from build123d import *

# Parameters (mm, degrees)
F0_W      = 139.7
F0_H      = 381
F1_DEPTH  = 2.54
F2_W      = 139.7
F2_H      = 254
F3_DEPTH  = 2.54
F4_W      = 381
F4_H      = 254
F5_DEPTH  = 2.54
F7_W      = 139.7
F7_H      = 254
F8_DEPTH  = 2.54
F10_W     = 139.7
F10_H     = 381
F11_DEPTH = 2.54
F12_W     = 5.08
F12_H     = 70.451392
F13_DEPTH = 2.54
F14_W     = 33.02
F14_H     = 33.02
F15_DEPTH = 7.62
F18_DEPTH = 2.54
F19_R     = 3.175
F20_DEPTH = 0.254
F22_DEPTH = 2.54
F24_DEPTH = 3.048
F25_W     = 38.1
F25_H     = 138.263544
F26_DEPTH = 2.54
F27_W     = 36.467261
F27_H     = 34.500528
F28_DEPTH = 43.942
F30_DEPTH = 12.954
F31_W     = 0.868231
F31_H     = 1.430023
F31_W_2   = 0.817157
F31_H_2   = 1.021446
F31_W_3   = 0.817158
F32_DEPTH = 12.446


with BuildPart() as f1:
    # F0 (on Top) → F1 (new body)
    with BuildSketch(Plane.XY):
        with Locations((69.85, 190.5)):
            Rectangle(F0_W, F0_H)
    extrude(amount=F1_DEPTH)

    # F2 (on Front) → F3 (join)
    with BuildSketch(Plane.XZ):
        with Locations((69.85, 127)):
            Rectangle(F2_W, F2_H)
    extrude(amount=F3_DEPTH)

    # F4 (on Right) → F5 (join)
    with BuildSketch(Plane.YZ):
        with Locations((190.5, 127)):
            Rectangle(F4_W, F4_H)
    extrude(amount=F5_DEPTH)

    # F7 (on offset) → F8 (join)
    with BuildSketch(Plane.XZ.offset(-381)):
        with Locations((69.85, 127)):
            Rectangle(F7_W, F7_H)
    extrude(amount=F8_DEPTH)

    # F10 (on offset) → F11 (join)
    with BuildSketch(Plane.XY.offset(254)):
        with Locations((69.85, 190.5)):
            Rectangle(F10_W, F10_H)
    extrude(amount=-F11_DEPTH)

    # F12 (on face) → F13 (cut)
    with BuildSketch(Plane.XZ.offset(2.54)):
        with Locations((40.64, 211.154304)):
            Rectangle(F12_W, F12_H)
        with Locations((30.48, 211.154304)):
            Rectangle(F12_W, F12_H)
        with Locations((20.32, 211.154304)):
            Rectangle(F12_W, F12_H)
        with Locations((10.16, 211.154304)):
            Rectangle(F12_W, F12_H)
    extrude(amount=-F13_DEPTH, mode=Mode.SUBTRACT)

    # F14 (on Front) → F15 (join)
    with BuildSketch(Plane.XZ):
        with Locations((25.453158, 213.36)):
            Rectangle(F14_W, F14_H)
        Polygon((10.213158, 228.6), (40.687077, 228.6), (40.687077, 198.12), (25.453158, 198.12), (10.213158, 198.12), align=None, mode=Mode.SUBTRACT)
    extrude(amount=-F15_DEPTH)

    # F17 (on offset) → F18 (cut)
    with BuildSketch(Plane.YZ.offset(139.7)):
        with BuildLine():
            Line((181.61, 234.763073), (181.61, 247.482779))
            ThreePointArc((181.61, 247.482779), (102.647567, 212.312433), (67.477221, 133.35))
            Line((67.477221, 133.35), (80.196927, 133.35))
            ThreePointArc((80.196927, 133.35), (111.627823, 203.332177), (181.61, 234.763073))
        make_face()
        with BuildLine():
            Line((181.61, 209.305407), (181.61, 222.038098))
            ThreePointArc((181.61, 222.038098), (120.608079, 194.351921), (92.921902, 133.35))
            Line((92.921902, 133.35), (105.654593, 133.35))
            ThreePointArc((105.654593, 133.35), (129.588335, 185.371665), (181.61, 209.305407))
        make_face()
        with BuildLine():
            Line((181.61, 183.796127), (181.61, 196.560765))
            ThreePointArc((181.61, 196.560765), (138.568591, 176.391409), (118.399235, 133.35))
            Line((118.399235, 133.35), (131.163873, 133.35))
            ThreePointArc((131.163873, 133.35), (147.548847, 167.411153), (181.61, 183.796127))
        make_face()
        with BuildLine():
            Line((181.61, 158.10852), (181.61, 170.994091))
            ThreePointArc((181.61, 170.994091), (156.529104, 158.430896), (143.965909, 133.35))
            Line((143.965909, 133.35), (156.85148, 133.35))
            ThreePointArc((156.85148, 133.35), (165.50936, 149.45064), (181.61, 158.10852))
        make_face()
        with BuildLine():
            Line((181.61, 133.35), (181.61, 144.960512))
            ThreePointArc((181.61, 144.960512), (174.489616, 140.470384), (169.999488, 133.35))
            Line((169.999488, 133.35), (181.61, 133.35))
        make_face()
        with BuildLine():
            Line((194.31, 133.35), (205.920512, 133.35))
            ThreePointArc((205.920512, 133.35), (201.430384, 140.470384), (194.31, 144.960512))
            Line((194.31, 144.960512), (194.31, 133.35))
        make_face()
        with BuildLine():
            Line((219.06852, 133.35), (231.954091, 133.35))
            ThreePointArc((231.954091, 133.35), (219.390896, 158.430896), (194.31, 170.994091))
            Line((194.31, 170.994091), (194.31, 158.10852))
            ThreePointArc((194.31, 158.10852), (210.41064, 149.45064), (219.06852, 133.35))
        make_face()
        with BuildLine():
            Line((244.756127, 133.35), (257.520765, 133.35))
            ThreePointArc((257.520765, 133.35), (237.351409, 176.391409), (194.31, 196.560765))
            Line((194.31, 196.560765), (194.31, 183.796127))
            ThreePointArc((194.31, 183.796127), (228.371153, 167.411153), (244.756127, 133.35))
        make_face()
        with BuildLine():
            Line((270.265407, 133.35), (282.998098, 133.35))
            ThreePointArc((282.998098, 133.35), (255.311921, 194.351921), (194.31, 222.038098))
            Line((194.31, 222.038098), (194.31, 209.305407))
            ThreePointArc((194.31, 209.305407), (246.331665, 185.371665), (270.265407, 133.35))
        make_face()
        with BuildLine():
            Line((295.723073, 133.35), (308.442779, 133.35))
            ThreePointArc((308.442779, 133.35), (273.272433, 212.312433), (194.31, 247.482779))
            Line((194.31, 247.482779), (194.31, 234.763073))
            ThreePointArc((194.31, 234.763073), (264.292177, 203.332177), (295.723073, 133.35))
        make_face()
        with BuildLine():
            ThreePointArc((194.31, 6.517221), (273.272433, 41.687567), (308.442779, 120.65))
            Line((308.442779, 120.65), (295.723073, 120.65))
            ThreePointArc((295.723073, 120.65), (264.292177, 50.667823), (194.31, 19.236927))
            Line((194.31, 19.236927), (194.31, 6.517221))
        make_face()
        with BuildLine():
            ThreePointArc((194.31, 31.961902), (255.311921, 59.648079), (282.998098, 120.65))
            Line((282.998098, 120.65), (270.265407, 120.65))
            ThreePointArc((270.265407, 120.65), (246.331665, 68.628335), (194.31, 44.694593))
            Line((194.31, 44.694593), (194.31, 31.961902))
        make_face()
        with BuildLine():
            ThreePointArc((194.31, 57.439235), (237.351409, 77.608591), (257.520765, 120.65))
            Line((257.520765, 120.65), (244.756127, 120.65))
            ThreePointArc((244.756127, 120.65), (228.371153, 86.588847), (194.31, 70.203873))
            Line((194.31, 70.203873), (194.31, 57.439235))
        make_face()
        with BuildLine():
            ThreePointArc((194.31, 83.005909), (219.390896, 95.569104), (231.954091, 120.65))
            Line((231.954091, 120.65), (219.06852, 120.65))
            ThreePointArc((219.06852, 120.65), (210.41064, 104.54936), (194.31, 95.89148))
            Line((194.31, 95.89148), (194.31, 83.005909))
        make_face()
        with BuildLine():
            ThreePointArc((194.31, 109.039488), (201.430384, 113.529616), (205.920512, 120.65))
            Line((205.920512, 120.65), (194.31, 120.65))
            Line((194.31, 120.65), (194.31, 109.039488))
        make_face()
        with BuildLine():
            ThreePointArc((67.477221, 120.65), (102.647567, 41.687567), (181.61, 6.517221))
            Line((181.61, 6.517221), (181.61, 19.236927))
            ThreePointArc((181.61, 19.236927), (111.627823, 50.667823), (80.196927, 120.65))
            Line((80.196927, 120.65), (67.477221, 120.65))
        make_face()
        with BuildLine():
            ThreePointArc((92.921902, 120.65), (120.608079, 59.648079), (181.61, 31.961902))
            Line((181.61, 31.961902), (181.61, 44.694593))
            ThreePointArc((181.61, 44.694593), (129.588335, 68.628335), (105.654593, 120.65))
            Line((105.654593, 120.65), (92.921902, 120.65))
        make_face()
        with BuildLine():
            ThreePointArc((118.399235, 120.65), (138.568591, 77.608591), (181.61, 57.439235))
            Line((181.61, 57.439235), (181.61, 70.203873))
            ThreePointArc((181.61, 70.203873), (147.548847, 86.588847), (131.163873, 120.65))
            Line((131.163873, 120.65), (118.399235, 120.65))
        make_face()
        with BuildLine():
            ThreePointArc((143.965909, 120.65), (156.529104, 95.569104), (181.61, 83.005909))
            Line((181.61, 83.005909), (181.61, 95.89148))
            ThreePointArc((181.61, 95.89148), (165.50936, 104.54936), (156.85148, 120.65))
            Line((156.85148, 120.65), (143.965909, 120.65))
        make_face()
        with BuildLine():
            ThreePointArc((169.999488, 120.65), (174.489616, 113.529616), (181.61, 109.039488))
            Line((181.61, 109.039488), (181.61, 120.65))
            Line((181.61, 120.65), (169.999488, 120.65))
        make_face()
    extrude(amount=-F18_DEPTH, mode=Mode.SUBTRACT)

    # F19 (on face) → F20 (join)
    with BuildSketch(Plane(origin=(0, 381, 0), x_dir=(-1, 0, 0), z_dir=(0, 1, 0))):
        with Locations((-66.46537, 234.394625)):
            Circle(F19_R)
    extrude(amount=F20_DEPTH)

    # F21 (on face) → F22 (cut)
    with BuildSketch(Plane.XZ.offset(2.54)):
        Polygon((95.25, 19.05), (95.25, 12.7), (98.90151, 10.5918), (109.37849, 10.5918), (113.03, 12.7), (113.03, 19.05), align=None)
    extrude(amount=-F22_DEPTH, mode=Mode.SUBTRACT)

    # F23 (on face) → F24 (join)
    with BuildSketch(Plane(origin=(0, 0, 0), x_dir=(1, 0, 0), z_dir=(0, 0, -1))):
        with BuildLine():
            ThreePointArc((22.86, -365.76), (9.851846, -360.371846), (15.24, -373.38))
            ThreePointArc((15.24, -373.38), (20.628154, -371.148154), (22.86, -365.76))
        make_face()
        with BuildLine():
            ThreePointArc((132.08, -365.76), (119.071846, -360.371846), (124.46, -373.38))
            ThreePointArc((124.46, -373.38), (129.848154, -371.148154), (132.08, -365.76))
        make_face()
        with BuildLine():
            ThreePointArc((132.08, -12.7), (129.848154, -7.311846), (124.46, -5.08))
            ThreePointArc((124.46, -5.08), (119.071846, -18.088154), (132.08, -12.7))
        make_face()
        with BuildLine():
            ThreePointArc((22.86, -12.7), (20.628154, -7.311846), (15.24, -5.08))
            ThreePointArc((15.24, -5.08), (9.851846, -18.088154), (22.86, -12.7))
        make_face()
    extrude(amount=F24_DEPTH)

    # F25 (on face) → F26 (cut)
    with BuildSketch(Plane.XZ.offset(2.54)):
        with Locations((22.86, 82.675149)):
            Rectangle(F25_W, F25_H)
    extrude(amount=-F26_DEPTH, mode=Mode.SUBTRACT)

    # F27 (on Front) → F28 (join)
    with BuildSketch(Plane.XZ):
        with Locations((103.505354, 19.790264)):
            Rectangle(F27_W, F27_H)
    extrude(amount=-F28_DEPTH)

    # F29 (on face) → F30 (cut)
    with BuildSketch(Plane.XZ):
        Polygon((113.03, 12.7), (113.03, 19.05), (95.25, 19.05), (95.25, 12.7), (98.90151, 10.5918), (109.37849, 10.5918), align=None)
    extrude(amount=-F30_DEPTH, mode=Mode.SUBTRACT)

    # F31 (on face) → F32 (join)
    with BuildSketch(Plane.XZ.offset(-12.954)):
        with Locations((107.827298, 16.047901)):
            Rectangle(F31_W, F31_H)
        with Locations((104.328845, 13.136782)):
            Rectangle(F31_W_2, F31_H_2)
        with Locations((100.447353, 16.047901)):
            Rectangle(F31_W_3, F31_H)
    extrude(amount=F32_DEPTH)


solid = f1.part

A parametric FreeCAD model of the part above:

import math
import FreeCAD as App
import Part
import Sketcher
from FreeCAD import Vector
Q = App.Units.Quantity


def add_polygon(sketch, points):
    """Adds a closed chain of lines whose ends are joined by coincident constraints."""
    first, n = sketch.GeometryCount, len(points)
    for a, b in zip(points, points[1:] + points[:1]):
        sketch.addGeometry(Part.LineSegment(App.Vector(*a, 0), App.Vector(*b, 0)), False)
    for i in range(n):
        sketch.addConstraint(Sketcher.Constraint("Coincident", first + i, 2, first + (i + 1) % n, 1))

doc = App.newDocument("Part")
body = doc.addObject("PartDesign::Body", "Body")

sketch1 = body.newObject("Sketcher::SketchObject", "Sketch")
sketch1.AttachmentSupport = (doc.getObject("XY_Plane"), [""])
sketch1.MapMode = "FlatFace"
add_polygon(sketch1, [(0, 381), (0, 0), (140, 0), (140, 381)])
sketch1.addConstraint([
    Sketcher.Constraint("Vertical", 0),
    Sketcher.Constraint("Horizontal", 1),
    Sketcher.Constraint("Vertical", 2),
    Sketcher.Constraint("Horizontal", 3),
    Sketcher.Constraint("Coincident", 0, 2, -1, 1),
    Sketcher.Constraint("DistanceY", 0, 2, 0, 1, Q("15 in")),
    Sketcher.Constraint("DistanceX", 1, 1, 1, 2, Q("5.5 in")),
])
pad1 = body.newObject("PartDesign::Pad", "Pad")
pad1.Profile = sketch1
pad1.Length = Q("0.1 in")

sketch2 = body.newObject("Sketcher::SketchObject", "Sketch001")
sketch2.AttachmentSupport = (doc.getObject("XZ_Plane"), [""])
sketch2.MapMode = "FlatFace"
add_polygon(sketch2, [(0, 254), (0, 0), (140, 0), (140, 254)])
sketch2.addConstraint([
    Sketcher.Constraint("Vertical", 0),
    Sketcher.Constraint("Horizontal", 1),
    Sketcher.Constraint("Vertical", 2),
    Sketcher.Constraint("Horizontal", 3),
    Sketcher.Constraint("Coincident", 0, 2, -1, 1),
    Sketcher.Constraint("DistanceY", 0, 2, 0, 1, Q("10 in")),
    Sketcher.Constraint("DistanceX", 1, 1, 1, 2, Q("5.5 in")),
])
pad2 = body.newObject("PartDesign::Pad", "Pad001")
pad2.Profile = sketch2
pad2.Length = Q("0.1 in")

sketch3 = body.newObject("Sketcher::SketchObject", "Sketch002")
sketch3.AttachmentSupport = (doc.getObject("YZ_Plane"), [""])
sketch3.MapMode = "FlatFace"
add_polygon(sketch3, [(0, 254), (0, 0), (381, 0), (381, 254)])
sketch3.addConstraint([
    Sketcher.Constraint("Vertical", 0),
    Sketcher.Constraint("Horizontal", 1),
    Sketcher.Constraint("Vertical", 2),
    Sketcher.Constraint("Horizontal", 3),
    Sketcher.Constraint("Coincident", 0, 2, -1, 1),
    Sketcher.Constraint("DistanceX", 1, 1, 1, 2, Q("15 in")),
    Sketcher.Constraint("DistanceY", 0, 2, 0, 1, Q("10 in")),
])
pad3 = body.newObject("PartDesign::Pad", "Pad002")
pad3.Profile = sketch3
pad3.Length = Q("0.1 in")

sketch4 = body.newObject("Sketcher::SketchObject", "Sketch003")
sketch4.AttachmentSupport = (doc.getObject("XZ_Plane"), [""])
sketch4.MapMode = "FlatFace"
sketch4.AttachmentOffset = App.Placement(Vector(0, 0, -15 * 25.4), App.Rotation())
add_polygon(sketch4, [(0, 254), (0, 0), (140, 0), (140, 254)])
sketch4.addConstraint([
    Sketcher.Constraint("Vertical", 0),
    Sketcher.Constraint("Horizontal", 1),
    Sketcher.Constraint("Vertical", 2),
    Sketcher.Constraint("Horizontal", 3),
    Sketcher.Constraint("Coincident", 0, 2, -1, 1),
    Sketcher.Constraint("DistanceY", 0, 2, 0, 1, Q("10 in")),
    Sketcher.Constraint("DistanceX", 1, 1, 1, 2, Q("5.5 in")),
])
pad4 = body.newObject("PartDesign::Pad", "Pad003")
pad4.Profile = sketch4
pad4.Length = Q("0.1 in")

sketch5 = body.newObject("Sketcher::SketchObject", "Sketch004")
sketch5.AttachmentSupport = (doc.getObject("XY_Plane"), [""])
sketch5.MapMode = "FlatFace"
sketch5.AttachmentOffset = App.Placement(Vector(0, 0, 10 * 25.4), App.Rotation())
add_polygon(sketch5, [(0, 381), (0, 0), (140, 0), (140, 381)])
sketch5.addConstraint([
    Sketcher.Constraint("Vertical", 0),
    Sketcher.Constraint("Horizontal", 1),
    Sketcher.Constraint("Vertical", 2),
    Sketcher.Constraint("Horizontal", 3),
    Sketcher.Constraint("Coincident", 0, 2, -1, 1),
    Sketcher.Constraint("DistanceY", 0, 2, 0, 1, Q("15 in")),
    Sketcher.Constraint("DistanceX", 1, 1, 1, 2, Q("5.5 in")),
])
pad5 = body.newObject("PartDesign::Pad", "Pad004")
pad5.Profile = sketch5
pad5.Length = Q("0.1 in")
pad5.Reversed = True

sketch6 = body.newObject("Sketcher::SketchObject", "Sketch005")
sketch6.AttachmentSupport = (doc.getObject("XZ_Plane"), [""])
sketch6.MapMode = "FlatFace"
sketch6.AttachmentOffset = App.Placement(Vector(0, 0, 0.1 * 25.4), App.Rotation())
add_polygon(sketch6, [(38, 246), (38, 176), (43, 176), (43, 246)])
add_polygon(sketch6, [(28, 246), (28, 176), (33, 176), (33, 246)])
add_polygon(sketch6, [(18, 246), (18, 176), (23, 176), (23, 246)])
add_polygon(sketch6, [(8, 246), (8, 176), (13, 176), (13, 246)])
sketch6.addConstraint([
    Sketcher.Constraint("Vertical", 0),
    Sketcher.Constraint("Horizontal", 1),
    Sketcher.Constraint("Vertical", 2),
    Sketcher.Constraint("Horizontal", 3),
    Sketcher.Constraint("Vertical", 4),
    Sketcher.Constraint("Horizontal", 5),
    Sketcher.Constraint("Vertical", 6),
    Sketcher.Constraint("Horizontal", 7),
    Sketcher.Constraint("Vertical", 8),
    Sketcher.Constraint("Horizontal", 9),
    Sketcher.Constraint("Vertical", 10),
    Sketcher.Constraint("Horizontal", 11),
    Sketcher.Constraint("Vertical", 12),
    Sketcher.Constraint("Horizontal", 13),
    Sketcher.Constraint("Vertical", 14),
    Sketcher.Constraint("Horizontal", 15),
    Sketcher.Constraint("Horizontal", 1, 2, 4, 2),
    Sketcher.Constraint("Horizontal", 3, 2, 6, 2),
    Sketcher.Constraint("Horizontal", 5, 2, 8, 2),
    Sketcher.Constraint("Horizontal", 7, 2, 10, 2),
    Sketcher.Constraint("Horizontal", 9, 2, 12, 2),
    Sketcher.Constraint("Horizontal", 11, 2, 14, 2),
    Sketcher.Constraint("Equal", 3, 5),
    Sketcher.Constraint("Equal", 7, 9),
    Sketcher.Constraint("Equal", 11, 13),
    Sketcher.Constraint("DistanceX", 1, 1, 1, 2, Q("0.2 in")),
    Sketcher.Constraint("DistanceX", 8, 2, 1, 2, Q("1 in")),
    Sketcher.Constraint("DistanceX", 12, 2, 5, 2, Q("1 in")),
    Sketcher.Constraint("DistanceX", 14, 2, 3, 2, Q("1 in")),
    Sketcher.Constraint("DistanceX", -1, 1, 0, 2, Q("1.5 in")),
    Sketcher.Constraint("DistanceY", -1, 1, 2, 2, Q("9.7 in")),
    Sketcher.Constraint("DistanceY", 0, 2, 0, 1, Q("70.451392 mm")),
])
pocket1 = body.newObject("PartDesign::Pocket", "Pocket")
pocket1.Profile = sketch6
pocket1.Length = Q("0.1 in")

sketch7 = body.newObject("Sketcher::SketchObject", "Sketch006")
sketch7.AttachmentSupport = (doc.getObject("XZ_Plane"), [""])
sketch7.MapMode = "FlatFace"
add_polygon(sketch7, [(9, 230), (9, 197), (42, 197), (42, 230)])
add_polygon(sketch7, [(10, 198), (10, 229), (41, 229), (41, 198)])
sketch7.addConstraint([
    Sketcher.Constraint("Vertical", 0),
    Sketcher.Constraint("Horizontal", 1),
    Sketcher.Constraint("Vertical", 2),
    Sketcher.Constraint("Horizontal", 3),
    Sketcher.Constraint("Vertical", 4),
    Sketcher.Constraint("Horizontal", 5),
    Sketcher.Constraint("Vertical", 6),
    Sketcher.Constraint("Horizontal", 7),
    Sketcher.Constraint("Equal", 3, 0),
    Sketcher.Constraint("DistanceX", 1, 1, 1, 2, Q("1.3 in")),
    Sketcher.Constraint("DistanceY", 4, 1, 4, 2, Q("1.2 in")),
    Sketcher.Constraint("DistanceY", -1, 1, 4, 2, Q("9 in")),
    Sketcher.Constraint("DistanceY", -1, 1, 0, 2, Q("7.75 in")),
    Sketcher.Constraint("DistanceX", 3, 2, 4, 2, Q("0.05 in")),
    Sketcher.Constraint("DistanceX", 5, 1, 5, 2, Q("30.473919 mm")),
    Sketcher.Constraint("DistanceX", -1, 1, 0, 2, Q("8.943158 mm")),
])
pad6 = body.newObject("PartDesign::Pad", "Pad005")
pad6.Profile = sketch7
pad6.Length = Q("0.3 in")
pad6.Reversed = True

sketch8 = body.newObject("Sketcher::SketchObject", "Sketch007")
sketch8.AttachmentSupport = (doc.getObject("YZ_Plane"), [""])
sketch8.MapMode = "FlatFace"
sketch8.AttachmentOffset = App.Placement(Vector(0, 0, 5.5 * 25.4), App.Rotation())
sketch8.addGeometry([
    Part.LineSegment(Vector(182, 235, 0), Vector(182, 247, 0)),
    Part.ArcOfCircle(Part.Circle(Vector(188, 127, 0), Vector(0, 0, 1), 121), math.radians(93), math.radians(177)),
    Part.LineSegment(Vector(67, 133, 0), Vector(80, 133, 0)),
    Part.ArcOfCircle(Part.Circle(Vector(188, 127, 0), Vector(0, 0, 1), 108), math.radians(93), math.radians(177)),
    Part.LineSegment(Vector(182, 209, 0), Vector(182, 222, 0)),
    Part.ArcOfCircle(Part.Circle(Vector(188, 127, 0), Vector(0, 0, 1), 95), math.radians(94), math.radians(176)),
    Part.LineSegment(Vector(93, 133, 0), Vector(106, 133, 0)),
    Part.ArcOfCircle(Part.Circle(Vector(188, 127, 0), Vector(0, 0, 1), 83), math.radians(94), math.radians(176)),
    Part.LineSegment(Vector(182, 184, 0), Vector(182, 197, 0)),
    Part.ArcOfCircle(Part.Circle(Vector(188, 127, 0), Vector(0, 0, 1), 70), math.radians(95), math.radians(175)),
    Part.LineSegment(Vector(118, 133, 0), Vector(131, 133, 0)),
    Part.ArcOfCircle(Part.Circle(Vector(188, 127, 0), Vector(0, 0, 1), 57), math.radians(96), math.radians(174)),
    Part.LineSegment(Vector(182, 158, 0), Vector(182, 171, 0)),
    Part.ArcOfCircle(Part.Circle(Vector(188, 127, 0), Vector(0, 0, 1), 44), math.radians(98), math.radians(172)),
    Part.LineSegment(Vector(144, 133, 0), Vector(157, 133, 0)),
    Part.ArcOfCircle(Part.Circle(Vector(188, 127, 0), Vector(0, 0, 1), 32), math.radians(102), math.radians(168)),
    Part.LineSegment(Vector(182, 133, 0), Vector(182, 145, 0)),
    Part.ArcOfCircle(Part.Circle(Vector(188, 127, 0), Vector(0, 0, 1), 19), math.radians(109), math.radians(161)),
    Part.LineSegment(Vector(170, 133, 0), Vector(182, 133, 0)),
    Part.LineSegment(Vector(194, 133, 0), Vector(206, 133, 0)),
    Part.ArcOfCircle(Part.Circle(Vector(188, 127, 0), Vector(0, 0, 1), 19), math.radians(19), math.radians(71)),
    Part.LineSegment(Vector(194, 145, 0), Vector(194, 133, 0)),
    Part.LineSegment(Vector(219, 133, 0), Vector(232, 133, 0)),
    Part.ArcOfCircle(Part.Circle(Vector(188, 127, 0), Vector(0, 0, 1), 44), math.radians(8), math.radians(82)),
    Part.LineSegment(Vector(194, 171, 0), Vector(194, 158, 0)),
    Part.ArcOfCircle(Part.Circle(Vector(188, 127, 0), Vector(0, 0, 1), 32), math.radians(12), math.radians(78)),
    Part.LineSegment(Vector(245, 133, 0), Vector(258, 133, 0)),
    Part.ArcOfCircle(Part.Circle(Vector(188, 127, 0), Vector(0, 0, 1), 70), math.radians(5), math.radians(85)),
    Part.LineSegment(Vector(194, 197, 0), Vector(194, 184, 0)),
    Part.ArcOfCircle(Part.Circle(Vector(188, 127, 0), Vector(0, 0, 1), 57), math.radians(6), math.radians(84)),
    Part.LineSegment(Vector(270, 133, 0), Vector(283, 133, 0)),
    Part.ArcOfCircle(Part.Circle(Vector(188, 127, 0), Vector(0, 0, 1), 95), math.radians(4), math.radians(86)),
    Part.LineSegment(Vector(194, 222, 0), Vector(194, 209, 0)),
    Part.ArcOfCircle(Part.Circle(Vector(188, 127, 0), Vector(0, 0, 1), 83), math.radians(4), math.radians(86)),
    Part.LineSegment(Vector(296, 133, 0), Vector(308, 133, 0)),
    Part.ArcOfCircle(Part.Circle(Vector(188, 127, 0), Vector(0, 0, 1), 121), math.radians(3), math.radians(87)),
    Part.LineSegment(Vector(194, 247, 0), Vector(194, 235, 0)),
    Part.ArcOfCircle(Part.Circle(Vector(188, 127, 0), Vector(0, 0, 1), 108), math.radians(3), math.radians(87)),
    Part.ArcOfCircle(Part.Circle(Vector(188, 127, 0), Vector(0, 0, 1), 121), math.radians(-87), math.radians(-3)),
    Part.LineSegment(Vector(308, 121, 0), Vector(296, 121, 0)),
    Part.ArcOfCircle(Part.Circle(Vector(188, 127, 0), Vector(0, 0, 1), 108), math.radians(-87), math.radians(-3)),
    Part.LineSegment(Vector(194, 19, 0), Vector(194, 7, 0)),
    Part.ArcOfCircle(Part.Circle(Vector(188, 127, 0), Vector(0, 0, 1), 95), math.radians(-86), math.radians(-4)),
    Part.LineSegment(Vector(283, 121, 0), Vector(270, 121, 0)),
    Part.ArcOfCircle(Part.Circle(Vector(188, 127, 0), Vector(0, 0, 1), 83), math.radians(-86), math.radians(-4)),
    Part.LineSegment(Vector(194, 45, 0), Vector(194, 32, 0)),
    Part.ArcOfCircle(Part.Circle(Vector(188, 127, 0), Vector(0, 0, 1), 70), math.radians(-85), math.radians(-5)),
    Part.LineSegment(Vector(258, 121, 0), Vector(245, 121, 0)),
    Part.ArcOfCircle(Part.Circle(Vector(188, 127, 0), Vector(0, 0, 1), 57), math.radians(-84), math.radians(-6)),
    Part.LineSegment(Vector(194, 70, 0), Vector(194, 57, 0)),
    Part.ArcOfCircle(Part.Circle(Vector(188, 127, 0), Vector(0, 0, 1), 44), math.radians(-82), math.radians(-8)),
    Part.LineSegment(Vector(232, 121, 0), Vector(219, 121, 0)),
    Part.ArcOfCircle(Part.Circle(Vector(188, 127, 0), Vector(0, 0, 1), 32), math.radians(-78), math.radians(-12)),
    Part.LineSegment(Vector(194, 96, 0), Vector(194, 83, 0)),
    Part.ArcOfCircle(Part.Circle(Vector(188, 127, 0), Vector(0, 0, 1), 19), math.radians(-71), math.radians(-19)),
    Part.LineSegment(Vector(206, 121, 0), Vector(194, 121, 0)),
    Part.LineSegment(Vector(194, 121, 0), Vector(194, 109, 0)),
    Part.ArcOfCircle(Part.Circle(Vector(188, 127, 0), Vector(0, 0, 1), 121), math.radians(-177), math.radians(-93)),
    Part.LineSegment(Vector(182, 7, 0), Vector(182, 19, 0)),
    Part.ArcOfCircle(Part.Circle(Vector(188, 127, 0), Vector(0, 0, 1), 108), math.radians(-177), math.radians(-93)),
    Part.LineSegment(Vector(80, 121, 0), Vector(67, 121, 0)),
    Part.ArcOfCircle(Part.Circle(Vector(188, 127, 0), Vector(0, 0, 1), 95), math.radians(-176), math.radians(-94)),
    Part.LineSegment(Vector(182, 32, 0), Vector(182, 45, 0)),
    Part.ArcOfCircle(Part.Circle(Vector(188, 127, 0), Vector(0, 0, 1), 83), math.radians(-176), math.radians(-94)),
    Part.LineSegment(Vector(106, 121, 0), Vector(93, 121, 0)),
    Part.ArcOfCircle(Part.Circle(Vector(188, 127, 0), Vector(0, 0, 1), 70), math.radians(-175), math.radians(-95)),
    Part.LineSegment(Vector(182, 57, 0), Vector(182, 70, 0)),
    Part.ArcOfCircle(Part.Circle(Vector(188, 127, 0), Vector(0, 0, 1), 57), math.radians(-174), math.radians(-96)),
    Part.LineSegment(Vector(131, 121, 0), Vector(118, 121, 0)),
    Part.ArcOfCircle(Part.Circle(Vector(188, 127, 0), Vector(0, 0, 1), 44), math.radians(-172), math.radians(-98)),
    Part.LineSegment(Vector(182, 83, 0), Vector(182, 96, 0)),
    Part.ArcOfCircle(Part.Circle(Vector(188, 127, 0), Vector(0, 0, 1), 32), math.radians(-168), math.radians(-102)),
    Part.LineSegment(Vector(157, 121, 0), Vector(144, 121, 0)),
    Part.ArcOfCircle(Part.Circle(Vector(188, 127, 0), Vector(0, 0, 1), 19), math.radians(-161), math.radians(-109)),
    Part.LineSegment(Vector(182, 109, 0), Vector(182, 121, 0)),
    Part.LineSegment(Vector(182, 121, 0), Vector(170, 121, 0)),
], False)
sketch8.addConstraint([
    Sketcher.Constraint("Coincident", 0, 2, 1, 1),
    Sketcher.Constraint("Coincident", 1, 2, 2, 1),
    Sketcher.Constraint("Coincident", 2, 2, 3, 2),
    Sketcher.Constraint("Coincident", 3, 1, 0, 1),
    Sketcher.Constraint("Coincident", 4, 2, 5, 1),
    Sketcher.Constraint("Coincident", 5, 2, 6, 1),
    Sketcher.Constraint("Coincident", 6, 2, 7, 2),
    Sketcher.Constraint("Coincident", 7, 1, 4, 1),
    Sketcher.Constraint("Coincident", 8, 2, 9, 1),
    Sketcher.Constraint("Coincident", 9, 2, 10, 1),
    Sketcher.Constraint("Coincident", 10, 2, 11, 2),
    Sketcher.Constraint("Coincident", 11, 1, 8, 1),
    Sketcher.Constraint("Coincident", 12, 2, 13, 1),
    Sketcher.Constraint("Coincident", 13, 2, 14, 1),
    Sketcher.Constraint("Coincident", 14, 2, 15, 2),
    Sketcher.Constraint("Coincident", 15, 1, 12, 1),
    Sketcher.Constraint("Coincident", 16, 2, 17, 1),
    Sketcher.Constraint("Coincident", 17, 2, 18, 1),
    Sketcher.Constraint("Coincident", 18, 2, 16, 1),
    Sketcher.Constraint("Coincident", 19, 2, 20, 1),
    Sketcher.Constraint("Coincident", 20, 2, 21, 1),
    Sketcher.Constraint("Coincident", 21, 2, 19, 1),
    Sketcher.Constraint("Coincident", 22, 2, 23, 1),
    Sketcher.Constraint("Coincident", 23, 2, 24, 1),
    Sketcher.Constraint("Coincident", 24, 2, 25, 2),
    Sketcher.Constraint("Coincident", 25, 1, 22, 1),
    Sketcher.Constraint("Coincident", 26, 2, 27, 1),
    Sketcher.Constraint("Coincident", 27, 2, 28, 1),
    Sketcher.Constraint("Coincident", 28, 2, 29, 2),
    Sketcher.Constraint("Coincident", 29, 1, 26, 1),
    Sketcher.Constraint("Coincident", 30, 2, 31, 1),
    Sketcher.Constraint("Coincident", 31, 2, 32, 1),
    Sketcher.Constraint("Coincident", 32, 2, 33, 2),
    Sketcher.Constraint("Coincident", 33, 1, 30, 1),
    Sketcher.Constraint("Coincident", 34, 2, 35, 1),
    Sketcher.Constraint("Coincident", 35, 2, 36, 1),
    Sketcher.Constraint("Coincident", 36, 2, 37, 2),
    Sketcher.Constraint("Coincident", 37, 1, 34, 1),
    Sketcher.Constraint("Coincident", 38, 2, 39, 1),
    Sketcher.Constraint("Coincident", 39, 2, 40, 2),
    Sketcher.Constraint("Coincident", 40, 1, 41, 1),
    Sketcher.Constraint("Coincident", 41, 2, 38, 1),
    Sketcher.Constraint("Coincident", 42, 2, 43, 1),
    Sketcher.Constraint("Coincident", 43, 2, 44, 2),
    Sketcher.Constraint("Coincident", 44, 1, 45, 1),
    Sketcher.Constraint("Coincident", 45, 2, 42, 1),
    Sketcher.Constraint("Coincident", 46, 2, 47, 1),
    Sketcher.Constraint("Coincident", 47, 2, 48, 2),
    Sketcher.Constraint("Coincident", 48, 1, 49, 1),
    Sketcher.Constraint("Coincident", 49, 2, 46, 1),
    Sketcher.Constraint("Coincident", 50, 2, 51, 1),
    Sketcher.Constraint("Coincident", 51, 2, 52, 2),
    Sketcher.Constraint("Coincident", 52, 1, 53, 1),
    Sketcher.Constraint("Coincident", 53, 2, 50, 1),
    Sketcher.Constraint("Coincident", 54, 2, 55, 1),
    Sketcher.Constraint("Coincident", 55, 2, 56, 1),
    Sketcher.Constraint("Coincident", 56, 2, 54, 1),
    Sketcher.Constraint("Coincident", 57, 2, 58, 1),
    Sketcher.Constraint("Coincident", 58, 2, 59, 2),
    Sketcher.Constraint("Coincident", 59, 1, 60, 1),
    Sketcher.Constraint("Coincident", 60, 2, 57, 1),
    Sketcher.Constraint("Coincident", 61, 2, 62, 1),
    Sketcher.Constraint("Coincident", 62, 2, 63, 2),
    Sketcher.Constraint("Coincident", 63, 1, 64, 1),
    Sketcher.Constraint("Coincident", 64, 2, 61, 1),
    Sketcher.Constraint("Coincident", 65, 2, 66, 1),
    Sketcher.Constraint("Coincident", 66, 2, 67, 2),
    Sketcher.Constraint("Coincident", 67, 1, 68, 1),
    Sketcher.Constraint("Coincident", 68, 2, 65, 1),
    Sketcher.Constraint("Coincident", 69, 2, 70, 1),
    Sketcher.Constraint("Coincident", 70, 2, 71, 2),
    Sketcher.Constraint("Coincident", 71, 1, 72, 1),
    Sketcher.Constraint("Coincident", 72, 2, 69, 1),
    Sketcher.Constraint("Coincident", 73, 2, 74, 1),
    Sketcher.Constraint("Coincident", 74, 2, 75, 1),
    Sketcher.Constraint("Coincident", 75, 2, 73, 1),
    Sketcher.Constraint("Vertical", 0),
    Sketcher.Constraint("Horizontal", 2),
    Sketcher.Constraint("Vertical", 4),
    Sketcher.Constraint("Horizontal", 6),
    Sketcher.Constraint("Vertical", 8),
    Sketcher.Constraint("Horizontal", 10),
    Sketcher.Constraint("Vertical", 12),
    Sketcher.Constraint("Horizontal", 14),
    Sketcher.Constraint("Vertical", 16),
    Sketcher.Constraint("Horizontal", 18),
    Sketcher.Constraint("Horizontal", 19),
    Sketcher.Constraint("Vertical", 21),
    Sketcher.Constraint("Horizontal", 22),
    Sketcher.Constraint("Vertical", 24),
    Sketcher.Constraint("Horizontal", 26),
    Sketcher.Constraint("Vertical", 28),
    Sketcher.Constraint("Horizontal", 30),
    Sketcher.Constraint("Vertical", 32),
    Sketcher.Constraint("Horizontal", 34),
    Sketcher.Constraint("Vertical", 36),
    Sketcher.Constraint("Horizontal", 39),
    Sketcher.Constraint("Vertical", 41),
    Sketcher.Constraint("Horizontal", 43),
    Sketcher.Constraint("Vertical", 45),
    Sketcher.Constraint("Horizontal", 47),
    Sketcher.Constraint("Vertical", 49),
    Sketcher.Constraint("Horizontal", 51),
    Sketcher.Constraint("Vertical", 53),
    Sketcher.Constraint("Horizontal", 55),
    Sketcher.Constraint("Vertical", 56),
    Sketcher.Constraint("Vertical", 58),
    Sketcher.Constraint("Horizontal", 60),
    Sketcher.Constraint("Vertical", 62),
    Sketcher.Constraint("Horizontal", 64),
    Sketcher.Constraint("Vertical", 66),
    Sketcher.Constraint("Horizontal", 68),
    Sketcher.Constraint("Vertical", 70),
    Sketcher.Constraint("Horizontal", 72),
    Sketcher.Constraint("Vertical", 74),
    Sketcher.Constraint("Horizontal", 75),
    Sketcher.Constraint("Coincident", 3, 3, 1, 3),
    Sketcher.Constraint("Coincident", 5, 3, 1, 3),
    Sketcher.Constraint("Coincident", 7, 3, 1, 3),
    Sketcher.Constraint("Coincident", 9, 3, 1, 3),
    Sketcher.Constraint("Coincident", 11, 3, 1, 3),
    Sketcher.Constraint("Coincident", 13, 3, 1, 3),
    Sketcher.Constraint("Coincident", 15, 3, 1, 3),
    Sketcher.Constraint("Coincident", 17, 3, 1, 3),
    Sketcher.Constraint("Coincident", 20, 3, 1, 3),
    Sketcher.Constraint("Coincident", 23, 3, 1, 3),
    Sketcher.Constraint("Coincident", 25, 3, 1, 3),
    Sketcher.Constraint("Coincident", 27, 3, 1, 3),
    Sketcher.Constraint("Coincident", 29, 3, 1, 3),
    Sketcher.Constraint("Coincident", 31, 3, 1, 3),
    Sketcher.Constraint("Coincident", 33, 3, 1, 3),
    Sketcher.Constraint("Coincident", 35, 3, 1, 3),
    Sketcher.Constraint("Coincident", 37, 3, 1, 3),
    Sketcher.Constraint("Coincident", 38, 3, 1, 3),
    Sketcher.Constraint("Coincident", 40, 3, 1, 3),
    Sketcher.Constraint("Coincident", 42, 3, 1, 3),
    Sketcher.Constraint("Coincident", 44, 3, 1, 3),
    Sketcher.Constraint("Coincident", 46, 3, 1, 3),
    Sketcher.Constraint("Coincident", 48, 3, 1, 3),
    Sketcher.Constraint("Coincident", 50, 3, 1, 3),
    Sketcher.Constraint("Coincident", 52, 3, 1, 3),
    Sketcher.Constraint("Coincident", 54, 3, 1, 3),
    Sketcher.Constraint("Coincident", 57, 3, 1, 3),
    Sketcher.Constraint("Coincident", 59, 3, 1, 3),
    Sketcher.Constraint("Coincident", 61, 3, 1, 3),
    Sketcher.Constraint("Coincident", 63, 3, 1, 3),
    Sketcher.Constraint("Coincident", 65, 3, 1, 3),
    Sketcher.Constraint("Coincident", 67, 3, 1, 3),
    Sketcher.Constraint("Coincident", 69, 3, 1, 3),
    Sketcher.Constraint("Coincident", 71, 3, 1, 3),
    Sketcher.Constraint("Coincident", 73, 3, 1, 3),
    Sketcher.Constraint("Equal", 17, 20),
    Sketcher.Constraint("Equal", 13, 23),
    Sketcher.Constraint("Equal", 15, 25),
    Sketcher.Constraint("Equal", 9, 27),
    Sketcher.Constraint("Equal", 11, 29),
    Sketcher.Constraint("Equal", 5, 31),
    Sketcher.Constraint("Equal", 7, 33),
    Sketcher.Constraint("Equal", 1, 35),
    Sketcher.Constraint("Equal", 3, 37),
    Sketcher.Constraint("Equal", 35, 38),
    Sketcher.Constraint("Equal", 37, 40),
    Sketcher.Constraint("Equal", 31, 42),
    Sketcher.Constraint("Equal", 33, 44),
    Sketcher.Constraint("Equal", 27, 46),
    Sketcher.Constraint("Equal", 29, 48),
    Sketcher.Constraint("Equal", 23, 50),
    Sketcher.Constraint("Equal", 25, 52),
    Sketcher.Constraint("Equal", 20, 54),
    Sketcher.Constraint("Equal", 38, 57),
    Sketcher.Constraint("Equal", 40, 59),
    Sketcher.Constraint("Equal", 42, 61),
    Sketcher.Constraint("Equal", 44, 63),
    Sketcher.Constraint("Equal", 46, 65),
    Sketcher.Constraint("Equal", 48, 67),
    Sketcher.Constraint("Equal", 50, 69),
    Sketcher.Constraint("Equal", 52, 71),
    Sketcher.Constraint("Equal", 54, 73),
    Sketcher.Constraint("Horizontal", 2, 2, 5, 2),
    Sketcher.Constraint("Horizontal", 6, 2, 9, 2),
    Sketcher.Constraint("Horizontal", 10, 2, 13, 2),
    Sketcher.Constraint("Horizontal", 14, 2, 17, 2),
    Sketcher.Constraint("Horizontal", 18, 2, 19, 2),
    Sketcher.Constraint("Horizontal", 16, 2, 20, 2),
    Sketcher.Constraint("Horizontal", 21, 2, 22, 2),
    Sketcher.Constraint("Horizontal", 12, 2, 23, 2),
    Sketcher.Constraint("Horizontal", 25, 1, 26, 2),
    Sketcher.Constraint("Horizontal", 8, 2, 27, 2),
    Sketcher.Constraint("Horizontal", 29, 1, 30, 2),
    Sketcher.Constraint("Horizontal", 4, 2, 31, 2),
    Sketcher.Constraint("Horizontal", 33, 1, 34, 2),
    Sketcher.Constraint("Horizontal", 0, 2, 35, 2),
    Sketcher.Constraint("Horizontal", 39, 2, 42, 2),
    Sketcher.Constraint("Horizontal", 43, 2, 46, 2),
    Sketcher.Constraint("Horizontal", 47, 2, 50, 2),
    Sketcher.Constraint("Horizontal", 51, 2, 54, 2),
    Sketcher.Constraint("Horizontal", 41, 2, 57, 2),
    Sketcher.Constraint("Horizontal", 55, 2, 59, 1),
    Sketcher.Constraint("Horizontal", 45, 2, 61, 2),
    Sketcher.Constraint("Horizontal", 60, 2, 63, 1),
    Sketcher.Constraint("Horizontal", 49, 2, 65, 2),
    Sketcher.Constraint("Horizontal", 64, 2, 67, 1),
    Sketcher.Constraint("Horizontal", 53, 2, 69, 2),
    Sketcher.Constraint("Horizontal", 68, 2, 71, 1),
    Sketcher.Constraint("Horizontal", 56, 2, 73, 2),
    Sketcher.Constraint("Horizontal", 72, 2, 74, 2),
    Sketcher.Constraint("Vertical", 3, 1, 4, 2),
    Sketcher.Constraint("Vertical", 7, 1, 8, 2),
    Sketcher.Constraint("Vertical", 11, 1, 12, 2),
    Sketcher.Constraint("Vertical", 15, 1, 16, 2),
    Sketcher.Constraint("Vertical", 34, 2, 38, 2),
    Sketcher.Constraint("Vertical", 36, 2, 40, 1),
    Sketcher.Constraint("Vertical", 41, 2, 44, 1),
    Sketcher.Constraint("Vertical", 45, 2, 48, 1),
    Sketcher.Constraint("Vertical", 49, 2, 52, 1),
    Sketcher.Constraint("Vertical", 53, 2, 55, 2),
    Sketcher.Constraint("Equal", 68, 8),
    Sketcher.Constraint("Radius", 1, Q("4.75 in")),
    Sketcher.Constraint("Radius", 3, Q("4.2499999 in")),
    Sketcher.Constraint("Radius", 5, Q("3.75 in")),
    Sketcher.Constraint("Radius", 7, Q("3.25 in")),
    Sketcher.Constraint("Radius", 9, Q("2.75 in")),
    Sketcher.Constraint("Radius", 11, Q("2.25 in")),
    Sketcher.Constraint("Radius", 13, Q("1.7500002 in")),
    Sketcher.Constraint("Radius", 15, Q("1.2500001 in")),
    Sketcher.Constraint("Radius", 17, Q("0.75 in")),
    Sketcher.Constraint("DistanceY", -1, 1, 1, 3, Q("5 in")),
    Sketcher.Constraint("DistanceX", -1, 1, 1, 3, Q("7.4 in")),
    Sketcher.Constraint("DistanceX", -1, 1, 0, 2, Q("7.15 in")),
])
pocket2 = body.newObject("PartDesign::Pocket", "Pocket001")
pocket2.Profile = sketch8
pocket2.Length = Q("0.1 in")

sketch9 = body.newObject("Sketcher::SketchObject", "Sketch008")
sketch9.AttachmentSupport = (doc.getObject("XZ_Plane"), [""])
sketch9.MapMode = "FlatFace"
sketch9.AttachmentOffset = App.Placement(Vector(0, 0, -15 * 25.4), App.Rotation())
sketch9.addGeometry(Part.Circle(Vector(66.5, 234.4, 0), Vector(0, 0, 1), 3.2), False)
sketch9.addConstraint([
    Sketcher.Constraint("Diameter", 0, Q("0.25 in")),
    Sketcher.Constraint("DistanceX", -1, 1, 0, 3, Q("66.46537 mm")),
    Sketcher.Constraint("DistanceY", -1, 1, 0, 3, Q("234.394625 mm")),
])
pad7 = body.newObject("PartDesign::Pad", "Pad006")
pad7.Profile = sketch9
pad7.Length = Q("0.01 in")
pad7.Reversed = True

sketch10 = body.newObject("Sketcher::SketchObject", "Sketch009")
sketch10.AttachmentSupport = (doc.getObject("XZ_Plane"), [""])
sketch10.MapMode = "FlatFace"
sketch10.AttachmentOffset = App.Placement(Vector(0, 0, 0.1 * 25.4), App.Rotation())
add_polygon(sketch10, [(95.2, 19.1), (95.2, 12.7), (98.9, 10.6), (109.4, 10.6), (113, 12.7), (113, 19.1)])
sketch10.addConstraint([
    Sketcher.Constraint("Vertical", 0),
    Sketcher.Constraint("Horizontal", 2),
    Sketcher.Constraint("Vertical", 4),
    Sketcher.Constraint("Horizontal", 5),
    Sketcher.Constraint("Horizontal", 0, 2, 3, 2),
    Sketcher.Constraint("Equal", 1, 3),
    Sketcher.Constraint("DistanceX", 5, 2, 5, 1, Q("0.7 in")),
    Sketcher.Constraint("Angle", 1, Q("-29.999997 deg")),
    Sketcher.Constraint("DistanceY", 0, 2, 0, 1, Q("0.25 in")),
    Sketcher.Constraint("DistanceY", -1, 1, 0, 2, Q("0.5 in")),
    Sketcher.Constraint("DistanceX", -1, 1, 0, 2, Q("3.75 in")),
    Sketcher.Constraint("Distance", 1, Q("0.166 in")),
])
pocket3 = body.newObject("PartDesign::Pocket", "Pocket002")
pocket3.Profile = sketch10
pocket3.Length = Q("0.1 in")

sketch11 = body.newObject("Sketcher::SketchObject", "Sketch010")
sketch11.AttachmentSupport = (doc.getObject("XY_Plane"), [""])
sketch11.MapMode = "FlatFace"
sketch11.addGeometry([
    Part.ArcOfCircle(Part.Circle(Vector(15, 366, 0), Vector(0, 0, 1), 8), math.radians(90), math.radians(360)),
    Part.ArcOfCircle(Part.Circle(Vector(15, 366, 0), Vector(0, 0, 1), 8), math.radians(0), math.radians(90)),
    Part.ArcOfCircle(Part.Circle(Vector(124, 366, 0), Vector(0, 0, 1), 8), math.radians(90), math.radians(360)),
    Part.ArcOfCircle(Part.Circle(Vector(124, 366, 0), Vector(0, 0, 1), 8), math.radians(0), math.radians(90)),
    Part.ArcOfCircle(Part.Circle(Vector(124, 13, 0), Vector(0, 0, 1), 8), math.radians(-90), math.radians(0)),
    Part.ArcOfCircle(Part.Circle(Vector(124, 13, 0), Vector(0, 0, 1), 8), math.radians(0), math.radians(270)),
    Part.ArcOfCircle(Part.Circle(Vector(15, 13, 0), Vector(0, 0, 1), 8), math.radians(-90), math.radians(0)),
    Part.ArcOfCircle(Part.Circle(Vector(15, 13, 0), Vector(0, 0, 1), 8), math.radians(0), math.radians(270)),
], False)
sketch11.addConstraint([
    Sketcher.Constraint("Tangent", 0, 1, 1, 2),
    Sketcher.Constraint("Coincident", 1, 1, 0, 2),
    Sketcher.Constraint("Tangent", 2, 1, 3, 2),
    Sketcher.Constraint("Coincident", 3, 1, 2, 2),
    Sketcher.Constraint("Tangent", 4, 1, 5, 2),
    Sketcher.Constraint("Coincident", 5, 1, 4, 2),
    Sketcher.Constraint("Tangent", 6, 1, 7, 2),
    Sketcher.Constraint("Coincident", 7, 1, 6, 2),
    Sketcher.Constraint("Equal", 1, 2),
    Sketcher.Constraint("Equal", 3, 4),
    Sketcher.Constraint("Equal", 5, 6),
    Sketcher.Constraint("Horizontal", 1, 3, 2, 3),
    Sketcher.Constraint("Horizontal", 5, 3, 6, 3),
    Sketcher.Constraint("Horizontal", 3, 3, 1, 1),
    Sketcher.Constraint("Horizontal", 1, 1, 3, 1),
    Sketcher.Constraint("Horizontal", 7, 3, 5, 1),
    Sketcher.Constraint("Horizontal", 5, 1, 7, 1),
    Sketcher.Constraint("Vertical", 3, 3, 4, 3),
    Sketcher.Constraint("Vertical", 1, 3, 6, 3),
    Sketcher.Constraint("Vertical", 7, 3, 0, 1),
    Sketcher.Constraint("Vertical", 5, 3, 2, 1),
    Sketcher.Constraint("Vertical", 2, 1, 4, 1),
    Sketcher.Constraint("Vertical", 0, 1, 6, 1),
    Sketcher.Constraint("Radius", 0, Q("0.3 in")),
    Sketcher.Constraint("DistanceX", 1, 1, 2, 3, Q("4 in")),
    Sketcher.Constraint("DistanceX", -1, 1, 0, 3, Q("0.6 in")),
    Sketcher.Constraint("DistanceY", -1, 1, 0, 3, Q("14.4 in")),
    Sketcher.Constraint("DistanceY", -1, 1, 4, 3, Q("0.5 in")),
])
pad8 = body.newObject("PartDesign::Pad", "Pad007")
pad8.Profile = sketch11
pad8.Length = Q("0.12 in")
pad8.Reversed = True

sketch12 = body.newObject("Sketcher::SketchObject", "Sketch011")
sketch12.AttachmentSupport = (doc.getObject("XZ_Plane"), [""])
sketch12.MapMode = "FlatFace"
sketch12.AttachmentOffset = App.Placement(Vector(0, 0, 0.1 * 25.4), App.Rotation())
add_polygon(sketch12, [(4, 152), (4, 14), (42, 14), (42, 152)])
sketch12.addConstraint([
    Sketcher.Constraint("Vertical", 0),
    Sketcher.Constraint("Horizontal", 1),
    Sketcher.Constraint("Vertical", 2),
    Sketcher.Constraint("Horizontal", 3),
    Sketcher.Constraint("DistanceX", 1, 1, 1, 2, Q("1.5 in")),
    Sketcher.Constraint("DistanceX", -1, 1, 0, 2, Q("0.15 in")),
    Sketcher.Constraint("DistanceY", 0, 2, 0, 1, Q("138.263544 mm")),
    Sketcher.Constraint("DistanceY", -1, 1, 2, 2, Q("151.806921 mm")),
])
pocket4 = body.newObject("PartDesign::Pocket", "Pocket003")
pocket4.Profile = sketch12
pocket4.Length = Q("0.1 in")

sketch13 = body.newObject("Sketcher::SketchObject", "Sketch012")
sketch13.AttachmentSupport = (doc.getObject("XZ_Plane"), [""])
sketch13.MapMode = "FlatFace"
add_polygon(sketch13, [(85, 37), (85, 3), (122, 3), (122, 37)])
sketch13.addConstraint([
    Sketcher.Constraint("Vertical", 0),
    Sketcher.Constraint("Horizontal", 1),
    Sketcher.Constraint("Vertical", 2),
    Sketcher.Constraint("Horizontal", 3),
    Sketcher.Constraint("DistanceY", -1, 1, 0, 2, Q("0.1 in")),
    Sketcher.Constraint("DistanceX", 1, 1, 1, 2, Q("36.467261 mm")),
    Sketcher.Constraint("DistanceY", 0, 2, 0, 1, Q("34.500528 mm")),
    Sketcher.Constraint("DistanceX", -1, 1, 0, 2, Q("85.271723 mm")),
])
pad9 = body.newObject("PartDesign::Pad", "Pad008")
pad9.Profile = sketch13
pad9.Length = Q("1.73 in")
pad9.Reversed = True

sketch14 = body.newObject("Sketcher::SketchObject", "Sketch013")
sketch14.AttachmentSupport = (doc.getObject("XZ_Plane"), [""])
sketch14.MapMode = "FlatFace"
add_polygon(sketch14, [(113, 12.7), (113, 19.1), (95.2, 19.1), (95.2, 12.7), (98.9, 10.6), (109.4, 10.6)])
sketch14.addConstraint([
    Sketcher.Constraint("Vertical", 0),
    Sketcher.Constraint("Horizontal", 1),
    Sketcher.Constraint("Vertical", 2),
    Sketcher.Constraint("Horizontal", 4),
    Sketcher.Constraint("Horizontal", 2, 2, 5, 2),
    Sketcher.Constraint("Equal", 3, 5),
    Sketcher.Constraint("DistanceX", 1, 2, 1, 1, Q("0.7 in")),
    Sketcher.Constraint("Angle", 3, Q("-29.999997 deg")),
    Sketcher.Constraint("DistanceY", 0, 1, 0, 2, Q("0.25 in")),
    Sketcher.Constraint("DistanceY", -1, 1, 2, 2, Q("0.5 in")),
    Sketcher.Constraint("DistanceX", -1, 1, 0, 2, Q("4.45 in")),
    Sketcher.Constraint("Distance", 3, Q("0.166 in")),
])
pocket5 = body.newObject("PartDesign::Pocket", "Pocket004")
pocket5.Profile = sketch14
pocket5.Length = Q("0.51 in")

sketch15 = body.newObject("Sketcher::SketchObject", "Sketch014")
sketch15.AttachmentSupport = (doc.getObject("XZ_Plane"), [""])
sketch15.MapMode = "FlatFace"
sketch15.AttachmentOffset = App.Placement(Vector(0, 0, -0.51 * 25.4), App.Rotation())
add_polygon(sketch15, [(107.4, 16.8), (107.4, 15.3), (108.3, 15.3), (108.3, 16.8)])
add_polygon(sketch15, [(103.9, 13.6), (103.9, 12.6), (104.7, 12.6), (104.7, 13.6)])
add_polygon(sketch15, [(100, 16.8), (100, 15.3), (100.9, 15.3), (100.9, 16.8)])
sketch15.addConstraint([
    Sketcher.Constraint("Vertical", 0),
    Sketcher.Constraint("Horizontal", 1),
    Sketcher.Constraint("Vertical", 2),
    Sketcher.Constraint("Horizontal", 3),
    Sketcher.Constraint("Vertical", 4),
    Sketcher.Constraint("Horizontal", 5),
    Sketcher.Constraint("Vertical", 6),
    Sketcher.Constraint("Horizontal", 7),
    Sketcher.Constraint("Vertical", 8),
    Sketcher.Constraint("Horizontal", 9),
    Sketcher.Constraint("Vertical", 10),
    Sketcher.Constraint("Horizontal", 11),
    Sketcher.Constraint("Horizontal", 1, 2, 8, 2),
    Sketcher.Constraint("Horizontal", 3, 2, 10, 2),
    Sketcher.Constraint("Equal", 7, 9),
    Sketcher.Constraint("DistanceY", 0, 2, 0, 1, Q("0.0563001 in")),
    Sketcher.Constraint("DistanceX", 1, 1, 1, 2, Q("0.868231 mm")),
    Sketcher.Constraint("DistanceX", 5, 1, 5, 2, Q("0.817157 mm")),
    Sketcher.Constraint("DistanceY", 4, 2, 4, 1, Q("1.021446 mm")),
    Sketcher.Constraint("DistanceY", -1, 1, 0, 2, Q("15.33289 mm")),
    Sketcher.Constraint("DistanceY", -1, 1, 4, 2, Q("12.626059 mm")),
    Sketcher.Constraint("DistanceX", -1, 1, 9, 2, Q("100.855932 mm")),
    Sketcher.Constraint("DistanceX", 5, 2, 0, 2, Q("2.655759 mm")),
    Sketcher.Constraint("DistanceX", 8, 2, 6, 2, Q("4.69865 mm")),
])
pad10 = body.newObject("PartDesign::Pad", "Pad009")
pad10.Profile = sketch15
pad10.Length = Q("0.49 in")

doc.recompute()
